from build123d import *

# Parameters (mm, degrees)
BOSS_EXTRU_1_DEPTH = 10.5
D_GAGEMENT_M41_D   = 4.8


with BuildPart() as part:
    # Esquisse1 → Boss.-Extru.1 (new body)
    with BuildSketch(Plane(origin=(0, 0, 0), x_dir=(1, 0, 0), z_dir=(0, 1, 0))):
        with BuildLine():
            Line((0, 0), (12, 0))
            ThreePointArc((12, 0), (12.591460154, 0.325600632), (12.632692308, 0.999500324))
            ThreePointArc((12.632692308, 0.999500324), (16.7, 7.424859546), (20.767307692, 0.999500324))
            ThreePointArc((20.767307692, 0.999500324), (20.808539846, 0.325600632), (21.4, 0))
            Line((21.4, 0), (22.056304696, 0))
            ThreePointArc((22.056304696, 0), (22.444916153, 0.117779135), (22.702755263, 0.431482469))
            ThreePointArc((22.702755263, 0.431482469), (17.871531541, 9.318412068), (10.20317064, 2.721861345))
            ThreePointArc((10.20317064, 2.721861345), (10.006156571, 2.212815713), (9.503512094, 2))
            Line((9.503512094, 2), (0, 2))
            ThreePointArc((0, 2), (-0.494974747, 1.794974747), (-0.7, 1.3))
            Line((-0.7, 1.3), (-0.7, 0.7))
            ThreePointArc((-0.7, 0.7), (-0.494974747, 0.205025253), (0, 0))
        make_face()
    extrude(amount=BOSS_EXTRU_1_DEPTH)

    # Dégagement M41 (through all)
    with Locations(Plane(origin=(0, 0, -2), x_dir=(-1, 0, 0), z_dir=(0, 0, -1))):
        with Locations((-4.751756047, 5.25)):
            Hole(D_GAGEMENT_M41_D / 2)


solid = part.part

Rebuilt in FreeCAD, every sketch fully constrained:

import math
import FreeCAD as App
import Part
import Sketcher

V = App.Vector
Q = App.Units.Quantity

doc = App.newDocument("Part")
body = doc.addObject("PartDesign::Body", "Body")

sketch1 = doc.addObject("Sketcher::SketchObject", "Sketch")
body.addObject(sketch1)
sketch1.AttachmentSupport = (doc.XZ_Plane, [""])
sketch1.MapMode = "FlatFace"
sketch1.addGeometry([
    Part.LineSegment(V(0, 0, 0), V(12, 0, 0)),
    Part.ArcOfCircle(Part.Circle(V(12, -0.7, 0), V(0, 0, 1), 0.7), math.radians(-25), math.radians(90)),
    Part.ArcOfCircle(Part.Circle(V(16.7, -2.9, 0), V(0, 0, 1), 4.5), math.radians(155), math.radians(385)),
    Part.ArcOfCircle(Part.Circle(V(21.4, -0.7, 0), V(0, 0, 1), 0.7), math.radians(90), math.radians(205)),
    Part.LineSegment(V(21.4, 0, 0), V(22.1, 0, 0)),
    Part.ArcOfCircle(Part.Circle(V(22.1, -0.7, 0), V(0, 0, 1), 0.7), math.radians(23), math.radians(90)),
    Part.ArcOfCircle(Part.Circle(V(16.7, -2.9, 0), V(0, 0, 1), 6.5), math.radians(178), math.radians(383)),
    Part.ArcOfCircle(Part.Circle(V(9.5, -2.7, 0), V(0, 0, 1), 0.7), math.radians(-2), math.radians(90)),
    Part.LineSegment(V(9.5, -2, 0), V(0, -2, 0)),
    Part.ArcOfCircle(Part.Circle(V(0, -1.3, 0), V(0, 0, 1), 0.7), math.radians(180), math.radians(270)),
    Part.LineSegment(V(-0.7, -1.3, 0), V(-0.7, -0.7, 0)),
    Part.ArcOfCircle(Part.Circle(V(0, -0.7, 0), V(0, 0, 1), 0.7), math.radians(90), math.radians(180)),
], False)
sketch1.addConstraint([
    Sketcher.Constraint("Tangent", 0, 2, 1, 2),
    Sketcher.Constraint("Tangent", 1, 1, 2, 1),
    Sketcher.Constraint("Tangent", 2, 2, 3, 2),
    Sketcher.Constraint("Tangent", 3, 1, 4, 1),
    Sketcher.Constraint("Tangent", 4, 2, 5, 2),
    Sketcher.Constraint("Tangent", 5, 1, 6, 2),
    Sketcher.Constraint("Tangent", 6, 1, 7, 1),
    Sketcher.Constraint("Tangent", 7, 2, 8, 1),
    Sketcher.Constraint("Tangent", 8, 2, 9, 2),
    Sketcher.Constraint("Tangent", 9, 1, 10, 1),
    Sketcher.Constraint("Tangent", 10, 2, 11, 2),
    Sketcher.Constraint("Tangent", 11, 1, 0, 1),
    Sketcher.Constraint("Horizontal", 0),
    Sketcher.Constraint("Horizontal", 4),
    Sketcher.Constraint("Horizontal", 8),
    Sketcher.Constraint("Vertical", 10),
    Sketcher.Constraint("Coincident", 11, 1, -1, 1),
    Sketcher.Constraint("Coincident", 6, 3, 2, 3),
    Sketcher.Constraint("Equal", 1, 3),
    Sketcher.Constraint("Equal", 3, 5),
    Sketcher.Constraint("Equal", 5, 7),
    Sketcher.Constraint("Equal", 7, 9),
    Sketcher.Constraint("Equal", 9, 11),
    Sketcher.Constraint("PointOnObject", 3, 1, -1),
    Sketcher.Constraint("Radius", 1, Q("0.7 mm")),
    Sketcher.Constraint("Radius", 2, Q("4.5 mm")),
    Sketcher.Constraint("Radius", 6, Q("6.5 mm")),
    Sketcher.Constraint("DistanceX", 0, 1, 0, 2, Q("12 mm")),
    Sketcher.Constraint("DistanceY", 10, 1, 10, 2, Q("0.6 mm")),
    Sketcher.Constraint("DistanceX", -1, 1, 2, 3, Q("16.7 mm")),
])
pad1 = doc.addObject("PartDesign::Pad", "Pad")
body.addObject(pad1)
pad1.Profile = sketch1
pad1.Length = 10.5
pad1.Reversed = True

sketch2 = doc.addObject("Sketcher::SketchObject", "Sketch001")
body.addObject(sketch2)
sketch2.AttachmentSupport = (doc.XY_Plane, [""])
sketch2.MapMode = "FlatFace"
sketch2.AttachmentOffset = App.Placement(V(0, 0, -2), App.Rotation())
sketch2.addGeometry(Part.Circle(V(4.8, 5.2, 0), V(0, 0, 1), 2.4), False)
sketch2.addConstraint([
    Sketcher.Constraint("Diameter", 0, Q("4.8 mm")),
    Sketcher.Constraint("DistanceY", -1, 1, 0, 3, Q("5.25 mm")),
    Sketcher.Constraint("DistanceX", -1, 1, 0, 3, Q("4.751756 mm")),
])
doc.recompute()
hole = doc.addObject("PartDesign::Hole", "Hole")
body.addObject(hole)
hole.Profile = sketch2
hole.ThreadType = "None"
hole.Diameter = 4.8
hole.DepthType = "ThroughAll"
hole.Reversed = True

doc.recompute()
